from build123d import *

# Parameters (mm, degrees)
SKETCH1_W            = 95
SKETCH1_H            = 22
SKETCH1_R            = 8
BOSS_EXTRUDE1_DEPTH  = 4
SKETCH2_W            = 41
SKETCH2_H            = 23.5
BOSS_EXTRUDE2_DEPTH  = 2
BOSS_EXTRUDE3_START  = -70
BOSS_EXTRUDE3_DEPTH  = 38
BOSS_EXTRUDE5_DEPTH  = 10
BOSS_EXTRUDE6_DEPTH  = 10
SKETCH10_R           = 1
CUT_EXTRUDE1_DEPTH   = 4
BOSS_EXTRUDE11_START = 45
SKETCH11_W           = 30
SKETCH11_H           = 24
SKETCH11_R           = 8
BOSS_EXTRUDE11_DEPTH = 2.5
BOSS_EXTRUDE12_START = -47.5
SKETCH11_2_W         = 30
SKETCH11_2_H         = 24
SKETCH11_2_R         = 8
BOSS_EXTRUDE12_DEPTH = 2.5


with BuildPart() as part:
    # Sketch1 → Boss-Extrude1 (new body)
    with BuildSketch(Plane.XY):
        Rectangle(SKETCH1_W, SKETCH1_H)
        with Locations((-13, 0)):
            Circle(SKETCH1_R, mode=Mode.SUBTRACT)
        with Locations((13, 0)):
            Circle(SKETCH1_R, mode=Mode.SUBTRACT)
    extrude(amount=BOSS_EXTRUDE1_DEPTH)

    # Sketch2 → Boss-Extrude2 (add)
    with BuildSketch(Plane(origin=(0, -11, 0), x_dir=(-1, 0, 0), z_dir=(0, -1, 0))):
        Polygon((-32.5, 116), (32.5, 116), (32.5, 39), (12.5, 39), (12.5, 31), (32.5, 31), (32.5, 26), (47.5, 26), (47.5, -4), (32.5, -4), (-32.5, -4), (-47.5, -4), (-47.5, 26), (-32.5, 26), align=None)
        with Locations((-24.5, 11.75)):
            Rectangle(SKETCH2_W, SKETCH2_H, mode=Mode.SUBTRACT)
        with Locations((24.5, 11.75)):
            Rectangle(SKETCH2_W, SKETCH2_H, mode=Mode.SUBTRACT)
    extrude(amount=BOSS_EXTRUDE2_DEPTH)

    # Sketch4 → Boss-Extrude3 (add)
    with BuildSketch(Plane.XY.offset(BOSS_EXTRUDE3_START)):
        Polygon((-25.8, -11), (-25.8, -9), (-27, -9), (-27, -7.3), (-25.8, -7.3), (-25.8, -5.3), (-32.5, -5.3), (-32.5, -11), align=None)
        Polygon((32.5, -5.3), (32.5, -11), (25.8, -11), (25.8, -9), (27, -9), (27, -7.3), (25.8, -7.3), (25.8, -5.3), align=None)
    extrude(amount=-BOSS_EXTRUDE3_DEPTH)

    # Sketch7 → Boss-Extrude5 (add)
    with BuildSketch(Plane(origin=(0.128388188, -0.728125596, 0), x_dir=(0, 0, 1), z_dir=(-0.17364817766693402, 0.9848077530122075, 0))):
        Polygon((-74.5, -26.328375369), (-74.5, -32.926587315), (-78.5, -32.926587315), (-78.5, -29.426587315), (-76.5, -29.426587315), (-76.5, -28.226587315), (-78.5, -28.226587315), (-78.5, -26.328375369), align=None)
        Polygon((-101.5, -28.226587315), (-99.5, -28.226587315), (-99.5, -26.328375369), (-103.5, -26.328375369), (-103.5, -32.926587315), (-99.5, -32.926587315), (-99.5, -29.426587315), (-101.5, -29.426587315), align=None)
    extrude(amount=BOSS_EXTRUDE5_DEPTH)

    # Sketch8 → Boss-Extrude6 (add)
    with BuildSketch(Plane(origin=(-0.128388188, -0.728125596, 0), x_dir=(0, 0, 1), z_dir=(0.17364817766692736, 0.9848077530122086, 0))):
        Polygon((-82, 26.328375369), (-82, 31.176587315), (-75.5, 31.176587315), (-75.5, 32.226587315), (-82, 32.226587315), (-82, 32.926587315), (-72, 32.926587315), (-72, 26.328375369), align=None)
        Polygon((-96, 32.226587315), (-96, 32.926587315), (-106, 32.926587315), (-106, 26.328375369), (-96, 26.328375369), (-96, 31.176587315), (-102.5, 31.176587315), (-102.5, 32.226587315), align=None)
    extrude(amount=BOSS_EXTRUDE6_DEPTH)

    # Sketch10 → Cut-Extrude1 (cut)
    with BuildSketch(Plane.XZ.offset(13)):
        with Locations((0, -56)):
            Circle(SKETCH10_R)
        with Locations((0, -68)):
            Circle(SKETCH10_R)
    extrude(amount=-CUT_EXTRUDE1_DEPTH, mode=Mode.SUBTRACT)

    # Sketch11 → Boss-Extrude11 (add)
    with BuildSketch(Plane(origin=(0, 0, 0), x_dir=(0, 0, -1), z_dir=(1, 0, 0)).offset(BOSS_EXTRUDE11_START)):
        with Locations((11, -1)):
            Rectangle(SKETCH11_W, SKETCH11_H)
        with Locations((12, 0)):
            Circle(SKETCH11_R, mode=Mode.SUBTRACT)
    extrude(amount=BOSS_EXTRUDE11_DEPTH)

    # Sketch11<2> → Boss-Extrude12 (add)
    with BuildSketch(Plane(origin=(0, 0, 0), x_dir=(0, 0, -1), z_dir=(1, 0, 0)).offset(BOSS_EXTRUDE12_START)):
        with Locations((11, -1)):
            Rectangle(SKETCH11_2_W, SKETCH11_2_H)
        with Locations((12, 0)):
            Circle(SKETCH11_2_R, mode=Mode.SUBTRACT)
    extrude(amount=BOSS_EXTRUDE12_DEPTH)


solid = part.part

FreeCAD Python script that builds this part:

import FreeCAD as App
import Part
import Sketcher
from FreeCAD import Vector
Q = App.Units.Quantity

doc = App.newDocument("Part")
params = doc.addObject("Spreadsheet::Sheet", "Params")
for row, (alias, value) in enumerate([
    ("sketch1_diameter", "16 mm"),
    ("sketch1_width", "95 mm"),
    ("sketch1_height", "22 mm"),
    ("pad1_length", "4 mm"),
    ("sketch2_width", "65 mm"),
    ("sketch2_width2", "15 mm"),
    ("sketch2_width3", "20 mm"),
    ("sketch2_width4", "41 mm"),
    ("sketch2_height", "90 mm"),
    ("pad2_length", "2 mm"),
    ("sketch3_height", "2 mm"),
    ("sketch3_width", "1.2 mm"),
    ("sketch3_width2", "6.7 mm"),
    ("sketch3_height2", "1.7 mm"),
    ("pad3_length", "38 mm"),
    ("sketch4_width", "4 mm"),
    ("sketch4_width2", "2 mm"),
    ("sketch4_height", "1.2 mm"),
    ("sketch4_height2", "3.5 mm"),
    ("pad4_length", "10 mm"),
    ("sketch5_width", "10 mm"),
    ("sketch5_width2", "6.5 mm"),
    ("sketch5_height", "0.7 mm"),
    ("sketch5_height2", "1.05 mm"),
    ("pad5_length", "10 mm"),
    ("sketch6_diameter", "2 mm"),
    ("pocket1_length", "4 mm"),
    ("sketch7_diameter", "16 mm"),
    ("sketch7_width", "24 mm"),
    ("sketch7_height", "30 mm"),
    ("pad6_length", "2.5 mm"),
    ("sketch8_diameter", "16 mm"),
    ("sketch8_width", "24 mm"),
    ("sketch8_height", "30 mm"),
    ("pad7_length", "2.5 mm"),
], start=1):
    params.set(f"A{row}", alias)
    params.set(f"B{row}", "=" + value)
    params.setAlias(f"B{row}", alias)

body = doc.addObject("PartDesign::Body", "Body")

# Sketch on XY plane
sketch1 = body.newObject("Sketcher::SketchObject", "Sketch")
sketch1.AttachmentSupport = (doc.getObject("XY_Plane"), [""])
sketch1.MapMode = "FlatFace"
sketch1.addGeometry([
    Part.LineSegment(Vector(-47.5, 11, 0), Vector(-47.5, -11, 0)),  # 0
    Part.LineSegment(Vector(-47.5, -11, 0), Vector(47.5, -11, 0)),  # 1
    Part.LineSegment(Vector(47.5, -11, 0), Vector(47.5, 11, 0)),  # 2
    Part.LineSegment(Vector(47.5, 11, 0), Vector(-47.5, 11, 0)),  # 3
    Part.Circle(Vector(-13, 0, 0), Vector(0, 0, 1), 8),  # 4
    Part.Circle(Vector(13, 0, 0), Vector(0, 0, 1), 8),  # 5
], False)
sketch1.addConstraint([
    Sketcher.Constraint("Coincident", 0, 2, 1, 1),
    Sketcher.Constraint("Coincident", 1, 2, 2, 1),
    Sketcher.Constraint("Coincident", 2, 2, 3, 1),
    Sketcher.Constraint("Coincident", 3, 2, 0, 1),
    Sketcher.Constraint("Vertical", 0),
    Sketcher.Constraint("Horizontal", 1),
    Sketcher.Constraint("Vertical", 2),
    Sketcher.Constraint("Horizontal", 3),
    Sketcher.Constraint("Equal", 4, 5),
    Sketcher.Constraint("Symmetric", 4, 3, 5, 3, -1, 1),
    Sketcher.Constraint("Symmetric", 0, 2, 2, 2, -1, 1),
    Sketcher.Constraint("PointOnObject", 4, 3, -1),
    Sketcher.Constraint("Diameter", 4, Q("16 mm")),
    Sketcher.Constraint("DistanceX", 1, 1, 1, 2, Q("95 mm")),
    Sketcher.Constraint("DistanceY", 0, 2, 0, 1, Q("22 mm")),
    Sketcher.Constraint("DistanceX", 4, 3, -1, 1, Q("13 mm")),
])
sketch1.setExpression("Constraints[12]", "Params.sketch1_diameter")
sketch1.setExpression("Constraints[13]", "Params.sketch1_width")
sketch1.setExpression("Constraints[14]", "Params.sketch1_height")
pad1 = body.newObject("PartDesign::Pad", "Pad")
pad1.Profile = sketch1
pad1.setExpression("Length", "Params.pad1_length")

# Sketch on XZ plane
sketch2 = body.newObject("Sketcher::SketchObject", "Sketch001")
sketch2.AttachmentSupport = (doc.getObject("XZ_Plane"), [""])
sketch2.MapMode = "FlatFace"
sketch2.AttachmentOffset = App.Placement(Vector(0, 0, 11), App.Rotation())
sketch2.addGeometry([
    Part.LineSegment(Vector(-32.5, -116, 0), Vector(32.5, -116, 0)),  # 0
    Part.LineSegment(Vector(32.5, -116, 0), Vector(32.5, -26, 0)),  # 1
    Part.LineSegment(Vector(32.5, -26, 0), Vector(47.5, -26, 0)),  # 2
    Part.LineSegment(Vector(47.5, -26, 0), Vector(47.5, 4, 0)),  # 3
    Part.LineSegment(Vector(47.5, 4, 0), Vector(-47.5, 4, 0)),  # 4
    Part.LineSegment(Vector(-47.5, 4, 0), Vector(-47.5, -26, 0)),  # 5
    Part.LineSegment(Vector(-47.5, -26, 0), Vector(-32.5, -26, 0)),  # 6
    Part.LineSegment(Vector(-32.5, -26, 0), Vector(-32.5, -31, 0)),  # 7
    Part.LineSegment(Vector(-32.5, -31, 0), Vector(-12.5, -31, 0)),  # 8
    Part.LineSegment(Vector(-12.5, -31, 0), Vector(-12.5, -39, 0)),  # 9
    Part.LineSegment(Vector(-12.5, -39, 0), Vector(-32.5, -39, 0)),  # 10
    Part.LineSegment(Vector(-32.5, -39, 0), Vector(-32.5, -116, 0)),  # 11
    Part.LineSegment(Vector(-4, 0, 0), Vector(-4, -23.5, 0)),  # 12
    Part.LineSegment(Vector(-4, -23.5, 0), Vector(-45, -23.5, 0)),  # 13
    Part.LineSegment(Vector(-45, -23.5, 0), Vector(-45, 0, 0)),  # 14
    Part.LineSegment(Vector(-45, 0, 0), Vector(-4, 0, 0)),  # 15
    Part.LineSegment(Vector(45, 0, 0), Vector(45, -23.5, 0)),  # 16
    Part.LineSegment(Vector(45, -23.5, 0), Vector(4, -23.5, 0)),  # 17
    Part.LineSegment(Vector(4, -23.5, 0), Vector(4, 0, 0)),  # 18
    Part.LineSegment(Vector(4, 0, 0), Vector(45, 0, 0)),  # 19
], False)
sketch2.addConstraint([
    Sketcher.Constraint("Coincident", 0, 2, 1, 1),
    Sketcher.Constraint("Coincident", 1, 2, 2, 1),
    Sketcher.Constraint("Coincident", 2, 2, 3, 1),
    Sketcher.Constraint("Coincident", 3, 2, 4, 1),
    Sketcher.Constraint("Coincident", 4, 2, 5, 1),
    Sketcher.Constraint("Coincident", 5, 2, 6, 1),
    Sketcher.Constraint("Coincident", 6, 2, 7, 1),
    Sketcher.Constraint("Coincident", 7, 2, 8, 1),
    Sketcher.Constraint("Coincident", 8, 2, 9, 1),
    Sketcher.Constraint("Coincident", 9, 2, 10, 1),
    Sketcher.Constraint("Coincident", 10, 2, 11, 1),
    Sketcher.Constraint("Coincident", 11, 2, 0, 1),
    Sketcher.Constraint("Coincident", 12, 2, 13, 1),
    Sketcher.Constraint("Coincident", 13, 2, 14, 1),
    Sketcher.Constraint("Coincident", 14, 2, 15, 1),
    Sketcher.Constraint("Coincident", 15, 2, 12, 1),
    Sketcher.Constraint("Coincident", 16, 2, 17, 1),
    Sketcher.Constraint("Coincident", 17, 2, 18, 1),
    Sketcher.Constraint("Coincident", 18, 2, 19, 1),
    Sketcher.Constraint("Coincident", 19, 2, 16, 1),
    Sketcher.Constraint("Horizontal", 0),
    Sketcher.Constraint("Vertical", 1),
    Sketcher.Constraint("Horizontal", 2),
    Sketcher.Constraint("Vertical", 3),
    Sketcher.Constraint("Horizontal", 4),
    Sketcher.Constraint("Vertical", 5),
    Sketcher.Constraint("Horizontal", 6),
    Sketcher.Constraint("Vertical", 7),
    Sketcher.Constraint("Horizontal", 8),
    Sketcher.Constraint("Vertical", 9),
    Sketcher.Constraint("Horizontal", 10),
    Sketcher.Constraint("Vertical", 11),
    Sketcher.Constraint("Vertical", 12),
    Sketcher.Constraint("Horizontal", 13),
    Sketcher.Constraint("Vertical", 14),
    Sketcher.Constraint("Horizontal", 15),
    Sketcher.Constraint("Vertical", 16),
    Sketcher.Constraint("Horizontal", 17),
    Sketcher.Constraint("Vertical", 18),
    Sketcher.Constraint("Horizontal", 19),
    Sketcher.Constraint("Symmetric", 15, 2, 18, 2, -1, 1),
    Sketcher.Constraint("Symmetric", 2, 2, 5, 2, -2),
    Sketcher.Constraint("Symmetric", 13, 2, 16, 2, -2),
    Sketcher.Constraint("PointOnObject", 14, 2, -1),
    Sketcher.Constraint("Vertical", 7, 2, 10, 2),
    Sketcher.Constraint("Equal", 2, 6),
    Sketcher.Constraint("DistanceX", 0, 1, 0, 2, Q("65 mm")),
    Sketcher.Constraint("DistanceX", 2, 1, 2, 2, Q("15 mm")),
    Sketcher.Constraint("DistanceX", 8, 1, 8, 2, Q("20 mm")),
    Sketcher.Constraint("DistanceX", 13, 2, 13, 1, Q("41 mm")),
    Sketcher.Constraint("DistanceY", 1, 1, 1, 2, Q("90 mm")),
    Sketcher.Constraint("DistanceY", 3, 1, 3, 2, Q("30 mm")),
    Sketcher.Constraint("DistanceY", 7, 2, 7, 1, Q("5 mm")),
    Sketcher.Constraint("DistanceY", 9, 2, 9, 1, Q("8 mm")),
    Sketcher.Constraint("DistanceY", 12, 2, 12, 1, Q("23.5 mm")),
    Sketcher.Constraint("DistanceY", 0, 2, -1, 1, Q("116 mm")),
    Sketcher.Constraint("DistanceX", 12, 2, -1, 1, Q("4 mm")),
])
sketch2.setExpression("Constraints[46]", "Params.sketch2_width")
sketch2.setExpression("Constraints[47]", "Params.sketch2_width2")
sketch2.setExpression("Constraints[48]", "Params.sketch2_width3")
sketch2.setExpression("Constraints[49]", "Params.sketch2_width4")
sketch2.setExpression("Constraints[50]", "Params.sketch2_height")
pad2 = body.newObject("PartDesign::Pad", "Pad001")
pad2.Profile = sketch2
pad2.setExpression("Length", "Params.pad2_length")

# Sketch on XY plane
sketch3 = body.newObject("Sketcher::SketchObject", "Sketch002")
sketch3.AttachmentSupport = (doc.getObject("XY_Plane"), [""])
sketch3.MapMode = "FlatFace"
sketch3.AttachmentOffset = App.Placement(Vector(0, 0, -70), App.Rotation())
sketch3.addGeometry([
    Part.LineSegment(Vector(-25.8, -11, 0), Vector(-25.8, -9, 0)),  # 0
    Part.LineSegment(Vector(-25.8, -9, 0), Vector(-27, -9, 0)),  # 1
    Part.LineSegment(Vector(-27, -9, 0), Vector(-27, -7.3, 0)),  # 2
    Part.LineSegment(Vector(-27, -7.3, 0), Vector(-25.8, -7.3, 0)),  # 3
    Part.LineSegment(Vector(-25.8, -7.3, 0), Vector(-25.8, -5.3, 0)),  # 4
    Part.LineSegment(Vector(-25.8, -5.3, 0), Vector(-32.5, -5.3, 0)),  # 5
    Part.LineSegment(Vector(-32.5, -5.3, 0), Vector(-32.5, -11, 0)),  # 6
    Part.LineSegment(Vector(-32.5, -11, 0), Vector(-25.8, -11, 0)),  # 7
    Part.LineSegment(Vector(32.5, -11, 0), Vector(32.5, -5.3, 0)),  # 8
    Part.LineSegment(Vector(32.5, -5.3, 0), Vector(25.8, -5.3, 0)),  # 9
    Part.LineSegment(Vector(25.8, -5.3, 0), Vector(25.8, -7.3, 0)),  # 10
    Part.LineSegment(Vector(25.8, -7.3, 0), Vector(27, -7.3, 0)),  # 11
    Part.LineSegment(Vector(27, -7.3, 0), Vector(27, -9, 0)),  # 12
    Part.LineSegment(Vector(27, -9, 0), Vector(25.8, -9, 0)),  # 13
    Part.LineSegment(Vector(25.8, -9, 0), Vector(25.8, -11, 0)),  # 14
    Part.LineSegment(Vector(25.8, -11, 0), Vector(32.5, -11, 0)),  # 15
], False)
sketch3.addConstraint([
    Sketcher.Constraint("Coincident", 0, 2, 1, 1),
    Sketcher.Constraint("Coincident", 1, 2, 2, 1),
    Sketcher.Constraint("Coincident", 2, 2, 3, 1),
    Sketcher.Constraint("Coincident", 3, 2, 4, 1),
    Sketcher.Constraint("Coincident", 4, 2, 5, 1),
    Sketcher.Constraint("Coincident", 5, 2, 6, 1),
    Sketcher.Constraint("Coincident", 6, 2, 7, 1),
    Sketcher.Constraint("Coincident", 7, 2, 0, 1),
    Sketcher.Constraint("Coincident", 8, 2, 9, 1),
    Sketcher.Constraint("Coincident", 9, 2, 10, 1),
    Sketcher.Constraint("Coincident", 10, 2, 11, 1),
    Sketcher.Constraint("Coincident", 11, 2, 12, 1),
    Sketcher.Constraint("Coincident", 12, 2, 13, 1),
    Sketcher.Constraint("Coincident", 13, 2, 14, 1),
    Sketcher.Constraint("Coincident", 14, 2, 15, 1),
    Sketcher.Constraint("Coincident", 15, 2, 8, 1),
    Sketcher.Constraint("Vertical", 0),
    Sketcher.Constraint("Horizontal", 1),
    Sketcher.Constraint("Vertical", 2),
    Sketcher.Constraint("Horizontal", 3),
    Sketcher.Constraint("Vertical", 4),
    Sketcher.Constraint("Horizontal", 5),
    Sketcher.Constraint("Vertical", 6),
    Sketcher.Constraint("Horizontal", 7),
    Sketcher.Constraint("Vertical", 8),
    Sketcher.Constraint("Horizontal", 9),
    Sketcher.Constraint("Vertical", 10),
    Sketcher.Constraint("Horizontal", 11),
    Sketcher.Constraint("Vertical", 12),
    Sketcher.Constraint("Horizontal", 13),
    Sketcher.Constraint("Vertical", 14),
    Sketcher.Constraint("Horizontal", 15),
    Sketcher.Constraint("Symmetric", 5, 2, 8, 2, -2),
    Sketcher.Constraint("Symmetric", 3, 2, 10, 2, -2),
    Sketcher.Constraint("Symmetric", 1, 2, 12, 2, -2),
    Sketcher.Constraint("Symmetric", 7, 2, 14, 2, -2),
    Sketcher.Constraint("Vertical", 0, 2, 3, 2),
    Sketcher.Constraint("Equal", 0, 4),
    Sketcher.Constraint("DistanceY", 0, 1, 0, 2, Q("2 mm")),
    Sketcher.Constraint("DistanceX", 1, 2, 1, 1, Q("1.2 mm")),
    Sketcher.Constraint("DistanceX", 5, 2, 5, 1, Q("6.7 mm")),
    Sketcher.Constraint("DistanceY", 2, 1, 2, 2, Q("1.7 mm")),
    Sketcher.Constraint("DistanceY", 0, 2, -1, 1, Q("9 mm")),
    Sketcher.Constraint("DistanceX", 1, 2, -1, 1, Q("27 mm")),
])
sketch3.setExpression("Constraints[38]", "Params.sketch3_height")
sketch3.setExpression("Constraints[39]", "Params.sketch3_width")
sketch3.setExpression("Constraints[40]", "Params.sketch3_width2")
sketch3.setExpression("Constraints[41]", "Params.sketch3_height2")
pad3 = body.newObject("PartDesign::Pad", "Pad002")
pad3.Profile = sketch3
pad3.setExpression("Length", "Params.pad3_length")
pad3.Reversed = True

# Sketch on an angled plane
sketch4 = body.newObject("Sketcher::SketchObject", "Sketch003")
sketch4.Placement = App.Placement(Vector(0.128388, -0.728126, 0), App.Rotation(Vector(0, 0, 1), Vector(0.984807753, 0.173648178, 0), Vector(-0.173648178, 0.984807753, 0), "ZXY"))
sketch4.addGeometry([
    Part.LineSegment(Vector(-74.5, -32.926587, 0), Vector(-74.5, -26.328375, 0)),  # 0
    Part.LineSegment(Vector(-74.5, -26.328375, 0), Vector(-78.5, -26.328375, 0)),  # 1
    Part.LineSegment(Vector(-78.5, -26.328375, 0), Vector(-78.5, -28.226587, 0)),  # 2
    Part.LineSegment(Vector(-78.5, -28.226587, 0), Vector(-76.5, -28.226587, 0)),  # 3
    Part.LineSegment(Vector(-76.5, -28.226587, 0), Vector(-76.5, -29.426587, 0)),  # 4
    Part.LineSegment(Vector(-76.5, -29.426587, 0), Vector(-78.5, -29.426587, 0)),  # 5
    Part.LineSegment(Vector(-78.5, -29.426587, 0), Vector(-78.5, -32.926587, 0)),  # 6
    Part.LineSegment(Vector(-78.5, -32.926587, 0), Vector(-74.5, -32.926587, 0)),  # 7
    Part.LineSegment(Vector(-101.5, -28.226587, 0), Vector(-99.5, -28.226587, 0)),  # 8
    Part.LineSegment(Vector(-99.5, -28.226587, 0), Vector(-99.5, -26.328375, 0)),  # 9
    Part.LineSegment(Vector(-99.5, -26.328375, 0), Vector(-103.5, -26.328375, 0)),  # 10
    Part.LineSegment(Vector(-103.5, -26.328375, 0), Vector(-103.5, -32.926587, 0)),  # 11
    Part.LineSegment(Vector(-103.5, -32.926587, 0), Vector(-99.5, -32.926587, 0)),  # 12
    Part.LineSegment(Vector(-99.5, -32.926587, 0), Vector(-99.5, -29.426587, 0)),  # 13
    Part.LineSegment(Vector(-99.5, -29.426587, 0), Vector(-101.5, -29.426587, 0)),  # 14
    Part.LineSegment(Vector(-101.5, -29.426587, 0), Vector(-101.5, -28.226587, 0)),  # 15
], False)
sketch4.addConstraint([
    Sketcher.Constraint("Coincident", 0, 2, 1, 1),
    Sketcher.Constraint("Coincident", 1, 2, 2, 1),
    Sketcher.Constraint("Coincident", 2, 2, 3, 1),
    Sketcher.Constraint("Coincident", 3, 2, 4, 1),
    Sketcher.Constraint("Coincident", 4, 2, 5, 1),
    Sketcher.Constraint("Coincident", 5, 2, 6, 1),
    Sketcher.Constraint("Coincident", 6, 2, 7, 1),
    Sketcher.Constraint("Coincident", 7, 2, 0, 1),
    Sketcher.Constraint("Coincident", 8, 2, 9, 1),
    Sketcher.Constraint("Coincident", 9, 2, 10, 1),
    Sketcher.Constraint("Coincident", 10, 2, 11, 1),
    Sketcher.Constraint("Coincident", 11, 2, 12, 1),
    Sketcher.Constraint("Coincident", 12, 2, 13, 1),
    Sketcher.Constraint("Coincident", 13, 2, 14, 1),
    Sketcher.Constraint("Coincident", 14, 2, 15, 1),
    Sketcher.Constraint("Coincident", 15, 2, 8, 1),
    Sketcher.Constraint("Vertical", 0),
    Sketcher.Constraint("Horizontal", 1),
    Sketcher.Constraint("Vertical", 2),
    Sketcher.Constraint("Horizontal", 3),
    Sketcher.Constraint("Vertical", 4),
    Sketcher.Constraint("Horizontal", 5),
    Sketcher.Constraint("Vertical", 6),
    Sketcher.Constraint("Horizontal", 7),
    Sketcher.Constraint("Horizontal", 8),
    Sketcher.Constraint("Vertical", 9),
    Sketcher.Constraint("Horizontal", 10),
    Sketcher.Constraint("Vertical", 11),
    Sketcher.Constraint("Horizontal", 12),
    Sketcher.Constraint("Vertical", 13),
    Sketcher.Constraint("Horizontal", 14),
    Sketcher.Constraint("Vertical", 15),
    Sketcher.Constraint("Horizontal", 3, 2, 8, 2),
    Sketcher.Constraint("Horizontal", 1, 2, 9, 2),
    Sketcher.Constraint("Horizontal", 7, 2, 11, 2),
    Sketcher.Constraint("Horizontal", 5, 2, 13, 2),
    Sketcher.Constraint("Vertical", 2, 2, 5, 2),
    Sketcher.Constraint("Vertical", 9, 2, 12, 2),
    Sketcher.Constraint("Equal", 5, 8),
    Sketcher.Constraint("Equal", 7, 10),
    Sketcher.Constraint("DistanceX", 1, 2, 1, 1, Q("4 mm")),
    Sketcher.Constraint("DistanceX", 3, 1, 3, 2, Q("2 mm")),
    Sketcher.Constraint("DistanceY", 4, 2, 4, 1, Q("1.2 mm")),
    Sketcher.Constraint("DistanceY", 6, 2, 6, 1, Q("3.5 mm")),
    Sketcher.Constraint("DistanceX", 8, 2, 2, 2, Q("21 mm")),
    Sketcher.Constraint("DistanceX", 0, 2, -1, 1, Q("74.5 mm")),
    Sketcher.Constraint("DistanceY", 0, 1, 0, 2, Q("6.598212 mm")),
    Sketcher.Constraint("DistanceY", 0, 2, -1, 1, Q("26.328375 mm")),
])
sketch4.setExpression("Constraints[40]", "Params.sketch4_width")
sketch4.setExpression("Constraints[41]", "Params.sketch4_width2")
sketch4.setExpression("Constraints[42]", "Params.sketch4_height")
sketch4.setExpression("Constraints[43]", "Params.sketch4_height2")
pad4 = body.newObject("PartDesign::Pad", "Pad003")
pad4.Profile = sketch4
pad4.setExpression("Length", "Params.pad4_length")

# Sketch on an angled plane
sketch5 = body.newObject("Sketcher::SketchObject", "Sketch004")
sketch5.Placement = App.Placement(Vector(-0.128388, -0.728126, 0), App.Rotation(Vector(0, 0, 1), Vector(0.984807753, -0.173648178, 0), Vector(0.173648178, 0.984807753, 0), "ZXY"))
sketch5.addGeometry([
    Part.LineSegment(Vector(-82, 31.176587, 0), Vector(-82, 26.328375, 0)),  # 0
    Part.LineSegment(Vector(-82, 26.328375, 0), Vector(-72, 26.328375, 0)),  # 1
    Part.LineSegment(Vector(-72, 26.328375, 0), Vector(-72, 32.926587, 0)),  # 2
    Part.LineSegment(Vector(-72, 32.926587, 0), Vector(-82, 32.926587, 0)),  # 3
    Part.LineSegment(Vector(-82, 32.926587, 0), Vector(-82, 32.226587, 0)),  # 4
    Part.LineSegment(Vector(-82, 32.226587, 0), Vector(-75.5, 32.226587, 0)),  # 5
    Part.LineSegment(Vector(-75.5, 32.226587, 0), Vector(-75.5, 31.176587, 0)),  # 6
    Part.LineSegment(Vector(-75.5, 31.176587, 0), Vector(-82, 31.176587, 0)),  # 7
    Part.LineSegment(Vector(-96, 32.226587, 0), Vector(-96, 32.926587, 0)),  # 8
    Part.LineSegment(Vector(-96, 32.926587, 0), Vector(-106, 32.926587, 0)),  # 9
    Part.LineSegment(Vector(-106, 32.926587, 0), Vector(-106, 26.328375, 0)),  # 10
    Part.LineSegment(Vector(-106, 26.328375, 0), Vector(-96, 26.328375, 0)),  # 11
    Part.LineSegment(Vector(-96, 26.328375, 0), Vector(-96, 31.176587, 0)),  # 12
    Part.LineSegment(Vector(-96, 31.176587, 0), Vector(-102.5, 31.176587, 0)),  # 13
    Part.LineSegment(Vector(-102.5, 31.176587, 0), Vector(-102.5, 32.226587, 0)),  # 14
    Part.LineSegment(Vector(-102.5, 32.226587, 0), Vector(-96, 32.226587, 0)),  # 15
], False)
sketch5.addConstraint([
    Sketcher.Constraint("Coincident", 0, 2, 1, 1),
    Sketcher.Constraint("Coincident", 1, 2, 2, 1),
    Sketcher.Constraint("Coincident", 2, 2, 3, 1),
    Sketcher.Constraint("Coincident", 3, 2, 4, 1),
    Sketcher.Constraint("Coincident", 4, 2, 5, 1),
    Sketcher.Constraint("Coincident", 5, 2, 6, 1),
    Sketcher.Constraint("Coincident", 6, 2, 7, 1),
    Sketcher.Constraint("Coincident", 7, 2, 0, 1),
    Sketcher.Constraint("Coincident", 8, 2, 9, 1),
    Sketcher.Constraint("Coincident", 9, 2, 10, 1),
    Sketcher.Constraint("Coincident", 10, 2, 11, 1),
    Sketcher.Constraint("Coincident", 11, 2, 12, 1),
    Sketcher.Constraint("Coincident", 12, 2, 13, 1),
    Sketcher.Constraint("Coincident", 13, 2, 14, 1),
    Sketcher.Constraint("Coincident", 14, 2, 15, 1),
    Sketcher.Constraint("Coincident", 15, 2, 8, 1),
    Sketcher.Constraint("Vertical", 0),
    Sketcher.Constraint("Horizontal", 1),
    Sketcher.Constraint("Vertical", 2),
    Sketcher.Constraint("Horizontal", 3),
    Sketcher.Constraint("Vertical", 4),
    Sketcher.Constraint("Horizontal", 5),
    Sketcher.Constraint("Vertical", 6),
    Sketcher.Constraint("Horizontal", 7),
    Sketcher.Constraint("Vertical", 8),
    Sketcher.Constraint("Horizontal", 9),
    Sketcher.Constraint("Vertical", 10),
    Sketcher.Constraint("Horizontal", 11),
    Sketcher.Constraint("Vertical", 12),
    Sketcher.Constraint("Horizontal", 13),
    Sketcher.Constraint("Vertical", 14),
    Sketcher.Constraint("Horizontal", 15),
    Sketcher.Constraint("Horizontal", 3, 2, 8, 2),
    Sketcher.Constraint("Horizontal", 1, 2, 10, 2),
    Sketcher.Constraint("Horizontal", 7, 2, 12, 2),
    Sketcher.Constraint("Horizontal", 5, 2, 14, 2),
    Sketcher.Constraint("Vertical", 0, 2, 3, 2),
    Sketcher.Constraint("Vertical", 8, 2, 11, 2),
    Sketcher.Constraint("Equal", 3, 9),
    Sketcher.Constraint("Equal", 7, 13),
    Sketcher.Constraint("DistanceX", 1, 1, 1, 2, Q("10 mm")),
    Sketcher.Constraint("DistanceX", 5, 1, 5, 2, Q("6.5 mm")),
    Sketcher.Constraint("DistanceY", 4, 2, 4, 1, Q("0.7 mm")),
    Sketcher.Constraint("DistanceX", 0, 2, -1, 1, Q("82 mm")),
    Sketcher.Constraint("DistanceX", 8, 2, -1, 1, Q("96 mm")),
    Sketcher.Constraint("DistanceY", 6, 2, 6, 1, Q("1.05 mm")),
    Sketcher.Constraint("DistanceY", 0, 2, 0, 1, Q("4.848212 mm")),
    Sketcher.Constraint("DistanceY", -1, 1, 0, 2, Q("26.328375 mm")),
])
sketch5.setExpression("Constraints[40]", "Params.sketch5_width")
sketch5.setExpression("Constraints[41]", "Params.sketch5_width2")
sketch5.setExpression("Constraints[42]", "Params.sketch5_height")
sketch5.setExpression("Constraints[45]", "Params.sketch5_height2")
pad5 = body.newObject("PartDesign::Pad", "Pad004")
pad5.Profile = sketch5
pad5.setExpression("Length", "Params.pad5_length")

# Sketch on XZ plane
sketch6 = body.newObject("Sketcher::SketchObject", "Sketch005")
sketch6.AttachmentSupport = (doc.getObject("XZ_Plane"), [""])
sketch6.MapMode = "FlatFace"
sketch6.AttachmentOffset = App.Placement(Vector(0, 0, 13), App.Rotation())
sketch6.addGeometry([
    Part.Circle(Vector(0, -56, 0), Vector(0, 0, 1), 1),
    Part.Circle(Vector(0, -68, 0), Vector(0, 0, 1), 1),
], False)
sketch6.addConstraint([
    Sketcher.Constraint("Equal", 0, 1),
    Sketcher.Constraint("PointOnObject", 0, 3, -2),
    Sketcher.Constraint("PointOnObject", 1, 3, -2),
    Sketcher.Constraint("Diameter", 0, Q("2 mm")),
    Sketcher.Constraint("DistanceY", 0, 3, -1, 1, Q("56 mm")),
    Sketcher.Constraint("DistanceY", 1, 3, -1, 1, Q("68 mm")),
])
sketch6.setExpression("Constraints[3]", "Params.sketch6_diameter")
pocket1 = body.newObject("PartDesign::Pocket", "Pocket")
pocket1.Profile = sketch6
pocket1.setExpression("Length", "Params.pocket1_length")

# Sketch on YZ plane
sketch7 = body.newObject("Sketcher::SketchObject", "Sketch006")
sketch7.AttachmentSupport = (doc.getObject("YZ_Plane"), [""])
sketch7.MapMode = "FlatFace"
sketch7.AttachmentOffset = App.Placement(Vector(0, 0, 45), App.Rotation())
sketch7.addGeometry([
    Part.LineSegment(Vector(11, 4, 0), Vector(-13, 4, 0)),  # 0
    Part.LineSegment(Vector(-13, 4, 0), Vector(-13, -26, 0)),  # 1
    Part.LineSegment(Vector(-13, -26, 0), Vector(11, -26, 0)),  # 2
    Part.LineSegment(Vector(11, -26, 0), Vector(11, 4, 0)),  # 3
    Part.Circle(Vector(0, -12, 0), Vector(0, 0, 1), 8),  # 4
], False)
sketch7.addConstraint([
    Sketcher.Constraint("Coincident", 0, 2, 1, 1),
    Sketcher.Constraint("Coincident", 1, 2, 2, 1),
    Sketcher.Constraint("Coincident", 2, 2, 3, 1),
    Sketcher.Constraint("Coincident", 3, 2, 0, 1),
    Sketcher.Constraint("Horizontal", 0),
    Sketcher.Constraint("Vertical", 1),
    Sketcher.Constraint("Horizontal", 2),
    Sketcher.Constraint("Vertical", 3),
    Sketcher.Constraint("PointOnObject", 4, 3, -2),
    Sketcher.Constraint("Diameter", 4, Q("16 mm")),
    Sketcher.Constraint("DistanceX", 0, 2, 0, 1, Q("24 mm")),
    Sketcher.Constraint("DistanceY", 1, 2, 1, 1, Q("30 mm")),
    Sketcher.Constraint("DistanceY", 4, 3, -1, 1, Q("12 mm")),
    Sketcher.Constraint("DistanceX", 0, 2, -1, 1, Q("13 mm")),
    Sketcher.Constraint("DistanceY", -1, 1, 0, 2, Q("4 mm")),
])
sketch7.setExpression("Constraints[9]", "Params.sketch7_diameter")
sketch7.setExpression("Constraints[10]", "Params.sketch7_width")
sketch7.setExpression("Constraints[11]", "Params.sketch7_height")
pad6 = body.newObject("PartDesign::Pad", "Pad005")
pad6.Profile = sketch7
pad6.setExpression("Length", "Params.pad6_length")

# Sketch on YZ plane
sketch8 = body.newObject("Sketcher::SketchObject", "Sketch007")
sketch8.AttachmentSupport = (doc.getObject("YZ_Plane"), [""])
sketch8.MapMode = "FlatFace"
sketch8.AttachmentOffset = App.Placement(Vector(0, 0, -47.5), App.Rotation())
sketch8.addGeometry([
    Part.LineSegment(Vector(11, 4, 0), Vector(-13, 4, 0)),  # 0
    Part.LineSegment(Vector(-13, 4, 0), Vector(-13, -26, 0)),  # 1
    Part.LineSegment(Vector(-13, -26, 0), Vector(11, -26, 0)),  # 2
    Part.LineSegment(Vector(11, -26, 0), Vector(11, 4, 0)),  # 3
    Part.Circle(Vector(0, -12, 0), Vector(0, 0, 1), 8),  # 4
], False)
sketch8.addConstraint([
    Sketcher.Constraint("Coincident", 0, 2, 1, 1),
    Sketcher.Constraint("Coincident", 1, 2, 2, 1),
    Sketcher.Constraint("Coincident", 2, 2, 3, 1),
    Sketcher.Constraint("Coincident", 3, 2, 0, 1),
    Sketcher.Constraint("Horizontal", 0),
    Sketcher.Constraint("Vertical", 1),
    Sketcher.Constraint("Horizontal", 2),
    Sketcher.Constraint("Vertical", 3),
    Sketcher.Constraint("PointOnObject", 4, 3, -2),
    Sketcher.Constraint("Diameter", 4, Q("16 mm")),
    Sketcher.Constraint("DistanceX", 0, 2, 0, 1, Q("24 mm")),
    Sketcher.Constraint("DistanceY", 1, 2, 1, 1, Q("30 mm")),
    Sketcher.Constraint("DistanceY", 4, 3, -1, 1, Q("12 mm")),
    Sketcher.Constraint("DistanceX", 0, 2, -1, 1, Q("13 mm")),
    Sketcher.Constraint("DistanceY", -1, 1, 0, 2, Q("4 mm")),
])
sketch8.setExpression("Constraints[9]", "Params.sketch8_diameter")
sketch8.setExpression("Constraints[10]", "Params.sketch8_width")
sketch8.setExpression("Constraints[11]", "Params.sketch8_height")
pad7 = body.newObject("PartDesign::Pad", "Pad006")
pad7.Profile = sketch8
pad7.setExpression("Length", "Params.pad7_length")

doc.recompute()
